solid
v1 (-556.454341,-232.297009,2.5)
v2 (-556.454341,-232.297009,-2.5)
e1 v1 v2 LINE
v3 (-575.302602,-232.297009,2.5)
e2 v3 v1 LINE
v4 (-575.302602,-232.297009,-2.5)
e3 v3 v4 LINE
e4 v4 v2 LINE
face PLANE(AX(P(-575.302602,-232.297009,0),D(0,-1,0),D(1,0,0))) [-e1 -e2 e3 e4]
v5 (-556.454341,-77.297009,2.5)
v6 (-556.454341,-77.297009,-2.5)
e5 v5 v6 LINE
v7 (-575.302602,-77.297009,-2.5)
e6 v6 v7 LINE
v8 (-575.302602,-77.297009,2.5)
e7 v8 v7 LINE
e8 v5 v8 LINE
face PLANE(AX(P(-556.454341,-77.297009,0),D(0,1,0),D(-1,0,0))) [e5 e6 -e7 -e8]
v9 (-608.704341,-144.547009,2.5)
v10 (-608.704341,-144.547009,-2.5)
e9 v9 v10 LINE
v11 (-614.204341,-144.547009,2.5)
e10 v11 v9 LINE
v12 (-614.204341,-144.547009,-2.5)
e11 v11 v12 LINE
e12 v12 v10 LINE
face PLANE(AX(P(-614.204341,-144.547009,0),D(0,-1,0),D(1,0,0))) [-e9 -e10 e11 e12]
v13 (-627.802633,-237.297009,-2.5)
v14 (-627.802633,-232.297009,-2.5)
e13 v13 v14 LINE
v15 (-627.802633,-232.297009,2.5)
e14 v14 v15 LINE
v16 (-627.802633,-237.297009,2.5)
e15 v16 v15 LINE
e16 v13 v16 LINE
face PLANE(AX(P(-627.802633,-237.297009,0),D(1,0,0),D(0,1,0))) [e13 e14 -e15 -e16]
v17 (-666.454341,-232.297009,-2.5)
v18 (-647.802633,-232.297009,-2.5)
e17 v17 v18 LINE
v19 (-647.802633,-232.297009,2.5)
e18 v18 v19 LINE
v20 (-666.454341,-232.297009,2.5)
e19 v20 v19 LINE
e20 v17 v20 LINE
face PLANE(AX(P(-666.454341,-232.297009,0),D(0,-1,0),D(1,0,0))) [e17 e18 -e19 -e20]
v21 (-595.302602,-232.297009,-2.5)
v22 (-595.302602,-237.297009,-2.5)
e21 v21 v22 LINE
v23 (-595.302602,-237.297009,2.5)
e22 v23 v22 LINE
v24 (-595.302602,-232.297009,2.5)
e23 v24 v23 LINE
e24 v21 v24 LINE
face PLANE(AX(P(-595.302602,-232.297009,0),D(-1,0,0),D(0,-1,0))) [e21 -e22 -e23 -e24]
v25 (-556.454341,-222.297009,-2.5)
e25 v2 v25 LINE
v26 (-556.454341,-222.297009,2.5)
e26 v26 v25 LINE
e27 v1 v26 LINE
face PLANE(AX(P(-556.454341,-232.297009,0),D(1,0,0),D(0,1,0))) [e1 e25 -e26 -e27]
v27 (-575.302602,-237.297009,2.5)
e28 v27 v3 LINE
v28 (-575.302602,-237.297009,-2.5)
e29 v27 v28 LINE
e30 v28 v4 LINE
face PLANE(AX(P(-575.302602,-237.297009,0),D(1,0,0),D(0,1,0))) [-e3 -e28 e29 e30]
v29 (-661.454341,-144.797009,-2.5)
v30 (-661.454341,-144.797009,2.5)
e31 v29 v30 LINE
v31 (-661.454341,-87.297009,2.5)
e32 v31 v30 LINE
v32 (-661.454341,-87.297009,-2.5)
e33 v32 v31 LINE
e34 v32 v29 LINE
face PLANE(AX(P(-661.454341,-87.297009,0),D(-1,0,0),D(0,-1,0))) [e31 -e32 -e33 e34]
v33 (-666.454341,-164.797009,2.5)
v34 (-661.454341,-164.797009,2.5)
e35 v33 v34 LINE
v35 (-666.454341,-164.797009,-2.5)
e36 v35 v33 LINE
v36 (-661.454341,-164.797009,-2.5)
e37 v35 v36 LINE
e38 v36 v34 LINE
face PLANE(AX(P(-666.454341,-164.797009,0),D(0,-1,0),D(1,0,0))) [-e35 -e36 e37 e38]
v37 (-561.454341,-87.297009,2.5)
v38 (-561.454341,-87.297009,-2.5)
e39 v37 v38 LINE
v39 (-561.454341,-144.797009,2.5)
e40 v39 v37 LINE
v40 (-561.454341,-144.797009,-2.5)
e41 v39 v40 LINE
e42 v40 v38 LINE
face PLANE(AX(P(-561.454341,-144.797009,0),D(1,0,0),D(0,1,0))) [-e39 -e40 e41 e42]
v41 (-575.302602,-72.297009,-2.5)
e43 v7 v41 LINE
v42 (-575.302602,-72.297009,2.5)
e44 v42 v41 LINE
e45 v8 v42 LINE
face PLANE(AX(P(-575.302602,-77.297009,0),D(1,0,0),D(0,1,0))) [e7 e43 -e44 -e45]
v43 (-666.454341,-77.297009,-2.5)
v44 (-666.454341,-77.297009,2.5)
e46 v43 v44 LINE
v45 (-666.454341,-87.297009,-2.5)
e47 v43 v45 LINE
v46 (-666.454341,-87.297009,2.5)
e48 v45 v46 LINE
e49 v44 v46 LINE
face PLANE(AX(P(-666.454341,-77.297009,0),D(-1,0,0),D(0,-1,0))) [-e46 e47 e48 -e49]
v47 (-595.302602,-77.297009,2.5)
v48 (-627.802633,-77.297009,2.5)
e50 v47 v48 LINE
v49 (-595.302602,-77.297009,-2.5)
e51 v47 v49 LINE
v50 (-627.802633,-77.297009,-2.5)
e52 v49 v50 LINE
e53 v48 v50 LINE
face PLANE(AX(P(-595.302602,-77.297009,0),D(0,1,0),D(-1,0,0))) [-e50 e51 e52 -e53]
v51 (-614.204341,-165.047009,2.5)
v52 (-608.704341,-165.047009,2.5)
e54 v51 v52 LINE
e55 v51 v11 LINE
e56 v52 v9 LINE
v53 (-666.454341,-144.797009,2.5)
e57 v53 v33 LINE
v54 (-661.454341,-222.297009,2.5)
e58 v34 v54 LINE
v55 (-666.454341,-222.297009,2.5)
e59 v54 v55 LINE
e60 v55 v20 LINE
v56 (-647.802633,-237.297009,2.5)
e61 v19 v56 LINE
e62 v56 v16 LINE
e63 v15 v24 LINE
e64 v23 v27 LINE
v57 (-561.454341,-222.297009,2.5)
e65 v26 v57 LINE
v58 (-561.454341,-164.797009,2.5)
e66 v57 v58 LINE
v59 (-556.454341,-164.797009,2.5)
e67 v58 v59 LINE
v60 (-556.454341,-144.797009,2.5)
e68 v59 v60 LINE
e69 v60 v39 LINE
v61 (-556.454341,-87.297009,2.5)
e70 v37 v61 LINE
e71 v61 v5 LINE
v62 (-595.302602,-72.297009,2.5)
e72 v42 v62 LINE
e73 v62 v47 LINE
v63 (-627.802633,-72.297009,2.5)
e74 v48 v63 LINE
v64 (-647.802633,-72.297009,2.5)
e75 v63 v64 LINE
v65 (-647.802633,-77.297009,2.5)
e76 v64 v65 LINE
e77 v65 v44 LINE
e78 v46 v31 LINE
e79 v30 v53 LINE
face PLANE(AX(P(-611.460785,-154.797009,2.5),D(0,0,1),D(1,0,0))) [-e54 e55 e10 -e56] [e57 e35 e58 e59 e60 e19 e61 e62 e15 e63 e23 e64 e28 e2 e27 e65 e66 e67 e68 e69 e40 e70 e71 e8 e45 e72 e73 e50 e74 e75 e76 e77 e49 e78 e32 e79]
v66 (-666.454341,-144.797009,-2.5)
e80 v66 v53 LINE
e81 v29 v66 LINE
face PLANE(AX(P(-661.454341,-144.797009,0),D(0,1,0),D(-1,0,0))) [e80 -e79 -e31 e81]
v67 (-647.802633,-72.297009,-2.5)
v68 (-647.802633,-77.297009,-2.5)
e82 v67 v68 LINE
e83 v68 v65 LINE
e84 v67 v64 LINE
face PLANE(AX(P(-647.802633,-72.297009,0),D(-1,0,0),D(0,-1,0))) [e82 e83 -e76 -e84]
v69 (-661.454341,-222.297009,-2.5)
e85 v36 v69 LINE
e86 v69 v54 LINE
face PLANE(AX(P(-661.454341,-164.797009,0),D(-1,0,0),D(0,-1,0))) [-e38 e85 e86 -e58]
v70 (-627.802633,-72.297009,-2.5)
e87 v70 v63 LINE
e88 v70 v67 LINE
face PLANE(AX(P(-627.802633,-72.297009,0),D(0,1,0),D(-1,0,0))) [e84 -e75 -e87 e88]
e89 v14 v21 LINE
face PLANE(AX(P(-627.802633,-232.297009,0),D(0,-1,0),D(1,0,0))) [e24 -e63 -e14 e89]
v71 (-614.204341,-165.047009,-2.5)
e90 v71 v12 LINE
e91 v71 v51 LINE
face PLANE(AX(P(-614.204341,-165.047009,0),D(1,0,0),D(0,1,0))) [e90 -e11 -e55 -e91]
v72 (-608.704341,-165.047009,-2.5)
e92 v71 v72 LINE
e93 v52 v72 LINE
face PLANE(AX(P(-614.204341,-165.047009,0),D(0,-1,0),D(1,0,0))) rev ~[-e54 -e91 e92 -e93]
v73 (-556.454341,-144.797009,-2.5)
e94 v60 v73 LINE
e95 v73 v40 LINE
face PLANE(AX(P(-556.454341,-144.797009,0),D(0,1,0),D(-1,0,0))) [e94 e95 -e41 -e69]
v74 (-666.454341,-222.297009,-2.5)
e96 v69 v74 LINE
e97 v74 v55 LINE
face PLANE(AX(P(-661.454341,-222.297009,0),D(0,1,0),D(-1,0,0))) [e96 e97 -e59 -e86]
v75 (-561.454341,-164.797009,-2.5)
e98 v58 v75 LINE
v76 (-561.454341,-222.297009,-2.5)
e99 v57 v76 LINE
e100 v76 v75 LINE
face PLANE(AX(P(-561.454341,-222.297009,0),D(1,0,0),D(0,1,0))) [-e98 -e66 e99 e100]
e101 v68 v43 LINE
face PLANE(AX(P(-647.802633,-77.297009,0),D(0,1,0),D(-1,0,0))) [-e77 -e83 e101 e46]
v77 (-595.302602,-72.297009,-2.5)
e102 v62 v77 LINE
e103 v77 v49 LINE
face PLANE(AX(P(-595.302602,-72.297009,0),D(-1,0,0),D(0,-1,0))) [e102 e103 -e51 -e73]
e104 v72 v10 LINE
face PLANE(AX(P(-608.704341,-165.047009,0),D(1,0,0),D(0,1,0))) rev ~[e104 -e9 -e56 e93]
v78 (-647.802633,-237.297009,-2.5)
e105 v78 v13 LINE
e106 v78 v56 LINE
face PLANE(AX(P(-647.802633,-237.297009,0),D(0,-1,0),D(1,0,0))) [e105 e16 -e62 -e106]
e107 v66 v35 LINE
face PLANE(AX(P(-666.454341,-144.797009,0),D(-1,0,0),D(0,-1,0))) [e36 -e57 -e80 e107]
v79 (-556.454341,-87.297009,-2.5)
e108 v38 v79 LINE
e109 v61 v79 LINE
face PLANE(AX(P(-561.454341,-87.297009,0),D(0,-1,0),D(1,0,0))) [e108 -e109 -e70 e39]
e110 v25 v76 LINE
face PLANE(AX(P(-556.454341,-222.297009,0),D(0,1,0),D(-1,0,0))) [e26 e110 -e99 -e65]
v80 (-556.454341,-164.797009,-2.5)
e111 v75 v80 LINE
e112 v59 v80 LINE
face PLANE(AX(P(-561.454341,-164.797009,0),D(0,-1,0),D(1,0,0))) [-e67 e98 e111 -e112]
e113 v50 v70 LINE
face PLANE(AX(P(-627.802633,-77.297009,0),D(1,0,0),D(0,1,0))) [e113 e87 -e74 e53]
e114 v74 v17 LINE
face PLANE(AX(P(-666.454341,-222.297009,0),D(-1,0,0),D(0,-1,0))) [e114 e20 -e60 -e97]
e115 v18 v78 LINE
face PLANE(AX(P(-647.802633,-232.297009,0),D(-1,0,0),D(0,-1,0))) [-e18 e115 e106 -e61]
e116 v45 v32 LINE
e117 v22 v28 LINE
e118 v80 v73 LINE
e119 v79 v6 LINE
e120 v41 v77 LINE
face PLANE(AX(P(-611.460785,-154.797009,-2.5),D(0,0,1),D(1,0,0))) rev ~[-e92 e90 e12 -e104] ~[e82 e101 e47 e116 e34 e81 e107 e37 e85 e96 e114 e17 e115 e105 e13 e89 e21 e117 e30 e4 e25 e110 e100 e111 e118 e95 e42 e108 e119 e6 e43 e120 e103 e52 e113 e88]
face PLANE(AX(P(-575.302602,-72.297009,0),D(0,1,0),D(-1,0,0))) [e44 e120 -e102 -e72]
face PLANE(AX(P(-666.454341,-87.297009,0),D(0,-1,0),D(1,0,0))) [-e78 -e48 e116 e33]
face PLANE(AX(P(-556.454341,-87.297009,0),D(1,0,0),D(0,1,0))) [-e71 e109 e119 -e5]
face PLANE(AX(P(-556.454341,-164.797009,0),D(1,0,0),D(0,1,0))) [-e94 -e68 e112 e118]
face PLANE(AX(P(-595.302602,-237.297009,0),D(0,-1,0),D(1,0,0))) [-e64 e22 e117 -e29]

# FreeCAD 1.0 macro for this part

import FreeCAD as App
import Part
import Sketcher


def add_polygon(sketch, points):
    """Adds a closed chain of lines whose ends are joined by coincident constraints."""
    first, n = sketch.GeometryCount, len(points)
    for a, b in zip(points, points[1:] + points[:1]):
        sketch.addGeometry(Part.LineSegment(App.Vector(*a, 0), App.Vector(*b, 0)), False)
    for i in range(n):
        sketch.addConstraint(Sketcher.Constraint("Coincident", first + i, 2, first + (i + 1) % n, 1))

doc = App.newDocument("Part")
body = doc.addObject("PartDesign::Body", "Body")

sketch1 = body.newObject("Sketcher::SketchObject", "Sketch")
sketch1.AttachmentSupport = (doc.getObject("XY_Plane"), [""])
sketch1.MapMode = "FlatFace"
add_polygon(sketch1, [(-628, -77), (-628, -72), (-648, -72), (-648, -77), (-666, -77), (-666, -87), (-661, -87), (-661, -145), (-666, -145), (-666, -165), (-661, -165), (-661, -222), (-666, -222), (-666, -232), (-648, -232), (-648, -237), (-628, -237), (-628, -232), (-595, -232), (-595, -237), (-575, -237), (-575, -232), (-556, -232), (-556, -222), (-561, -222), (-561, -165), (-556, -165), (-556, -145), (-561, -145), (-561, -87), (-556, -87), (-556, -77), (-575, -77), (-575, -72), (-595, -72), (-595, -77)])
add_polygon(sketch1, [(-609, -165), (-614, -165), (-614, -145), (-609, -145)])
sketch1.addConstraint([
    Sketcher.Constraint("Vertical", 0),
    Sketcher.Constraint("Horizontal", 1),
    Sketcher.Constraint("Vertical", 2),
    Sketcher.Constraint("Horizontal", 3),
    Sketcher.Constraint("Vertical", 4),
    Sketcher.Constraint("Horizontal", 5),
    Sketcher.Constraint("Vertical", 6),
    Sketcher.Constraint("Horizontal", 7),
    Sketcher.Constraint("Vertical", 8),
    Sketcher.Constraint("Horizontal", 9),
    Sketcher.Constraint("Vertical", 10),
    Sketcher.Constraint("Horizontal", 11),
    Sketcher.Constraint("Vertical", 12),
    Sketcher.Constraint("Horizontal", 13),
    Sketcher.Constraint("Vertical", 14),
    Sketcher.Constraint("Horizontal", 15),
    Sketcher.Constraint("Vertical", 16),
    Sketcher.Constraint("Horizontal", 17),
    Sketcher.Constraint("Vertical", 18),
    Sketcher.Constraint("Horizontal", 19),
    Sketcher.Constraint("Vertical", 20),
    Sketcher.Constraint("Horizontal", 21),
    Sketcher.Constraint("Vertical", 22),
    Sketcher.Constraint("Horizontal", 23),
    Sketcher.Constraint("Vertical", 24),
    Sketcher.Constraint("Horizontal", 25),
    Sketcher.Constraint("Vertical", 26),
    Sketcher.Constraint("Horizontal", 27),
    Sketcher.Constraint("Vertical", 28),
    Sketcher.Constraint("Horizontal", 29),
    Sketcher.Constraint("Vertical", 30),
    Sketcher.Constraint("Horizontal", 31),
    Sketcher.Constraint("Vertical", 32),
    Sketcher.Constraint("Horizontal", 33),
    Sketcher.Constraint("Vertical", 34),
    Sketcher.Constraint("Horizontal", 35),
    Sketcher.Constraint("Horizontal", 36),
    Sketcher.Constraint("Vertical", 37),
    Sketcher.Constraint("Horizontal", 38),
    Sketcher.Constraint("Vertical", 39),
    Sketcher.Constraint("Horizontal", 13, 2, 16, 2),
    Sketcher.Constraint("Horizontal", 15, 2, 18, 2),
    Sketcher.Constraint("Horizontal", 17, 2, 20, 2),
    Sketcher.Constraint("Horizontal", 11, 2, 22, 2),
    Sketcher.Constraint("Horizontal", 9, 2, 24, 2),
    Sketcher.Constraint("Horizontal", 7, 2, 26, 2),
    Sketcher.Constraint("Horizontal", 5, 2, 28, 2),
    Sketcher.Constraint("Horizontal", 3, 2, 30, 2),
    Sketcher.Constraint("Horizontal", 1, 2, 32, 2),
    Sketcher.Constraint("Horizontal", 31, 2, 34, 2),
    Sketcher.Constraint("Vertical", 4, 2, 7, 2),
    Sketcher.Constraint("Vertical", 6, 2, 9, 2),
    Sketcher.Constraint("Vertical", 8, 2, 11, 2),
    Sketcher.Constraint("Vertical", 2, 2, 13, 2),
    Sketcher.Constraint("Vertical", 0, 2, 15, 2),
    Sketcher.Constraint("Vertical", 22, 2, 25, 2),
    Sketcher.Constraint("Vertical", 24, 2, 27, 2),
    Sketcher.Constraint("Vertical", 26, 2, 29, 2),
    Sketcher.Constraint("Vertical", 20, 2, 31, 2),
    Sketcher.Constraint("Vertical", 18, 2, 33, 2),
    Sketcher.Constraint("Equal", 15, 19),
    Sketcher.Constraint("Equal", 11, 23),
    Sketcher.Constraint("Equal", 29, 0),
    Sketcher.Constraint("Equal", 33, 8),
    Sketcher.Constraint("Equal", 6, 10),
    Sketcher.Constraint("Equal", 4, 12),
    Sketcher.Constraint("Equal", 2, 14),
    Sketcher.Constraint("DistanceX", 1, 2, 1, 1, 20.0),
    Sketcher.Constraint("DistanceX", 5, 1, 5, 2, 5.0),
    Sketcher.Constraint("DistanceY", 4, 2, 4, 1, 10.0),
    Sketcher.Constraint("DistanceX", 36, 2, 36, 1, 5.5),
    Sketcher.Constraint("DistanceY", 6, 2, 6, 1, 57.5),
    Sketcher.Constraint("DistanceY", 37, 1, 37, 2, 20.5),
    Sketcher.Constraint("DistanceX", 9, 2, 36, 2, 47.25),
    Sketcher.Constraint("DistanceY", 36, 2, 9, 2, 0.25),
    Sketcher.Constraint("DistanceX", 36, 2, 24, 2, 52.75),
    Sketcher.Constraint("DistanceX", 17, 1, 17, 2, 32.500031),
    Sketcher.Constraint("DistanceX", 21, 1, 21, 2, 18.848261),
    Sketcher.Constraint("DistanceX", 17, 2, -1, 1, 595.302602),
    Sketcher.Constraint("DistanceY", 0, 2, -1, 1, 72.297009),
])
pad1 = body.newObject("PartDesign::Pad", "Pad")
pad1.Profile = sketch1
pad1.Length = 5
pad1.Midplane = True

doc.recompute()
